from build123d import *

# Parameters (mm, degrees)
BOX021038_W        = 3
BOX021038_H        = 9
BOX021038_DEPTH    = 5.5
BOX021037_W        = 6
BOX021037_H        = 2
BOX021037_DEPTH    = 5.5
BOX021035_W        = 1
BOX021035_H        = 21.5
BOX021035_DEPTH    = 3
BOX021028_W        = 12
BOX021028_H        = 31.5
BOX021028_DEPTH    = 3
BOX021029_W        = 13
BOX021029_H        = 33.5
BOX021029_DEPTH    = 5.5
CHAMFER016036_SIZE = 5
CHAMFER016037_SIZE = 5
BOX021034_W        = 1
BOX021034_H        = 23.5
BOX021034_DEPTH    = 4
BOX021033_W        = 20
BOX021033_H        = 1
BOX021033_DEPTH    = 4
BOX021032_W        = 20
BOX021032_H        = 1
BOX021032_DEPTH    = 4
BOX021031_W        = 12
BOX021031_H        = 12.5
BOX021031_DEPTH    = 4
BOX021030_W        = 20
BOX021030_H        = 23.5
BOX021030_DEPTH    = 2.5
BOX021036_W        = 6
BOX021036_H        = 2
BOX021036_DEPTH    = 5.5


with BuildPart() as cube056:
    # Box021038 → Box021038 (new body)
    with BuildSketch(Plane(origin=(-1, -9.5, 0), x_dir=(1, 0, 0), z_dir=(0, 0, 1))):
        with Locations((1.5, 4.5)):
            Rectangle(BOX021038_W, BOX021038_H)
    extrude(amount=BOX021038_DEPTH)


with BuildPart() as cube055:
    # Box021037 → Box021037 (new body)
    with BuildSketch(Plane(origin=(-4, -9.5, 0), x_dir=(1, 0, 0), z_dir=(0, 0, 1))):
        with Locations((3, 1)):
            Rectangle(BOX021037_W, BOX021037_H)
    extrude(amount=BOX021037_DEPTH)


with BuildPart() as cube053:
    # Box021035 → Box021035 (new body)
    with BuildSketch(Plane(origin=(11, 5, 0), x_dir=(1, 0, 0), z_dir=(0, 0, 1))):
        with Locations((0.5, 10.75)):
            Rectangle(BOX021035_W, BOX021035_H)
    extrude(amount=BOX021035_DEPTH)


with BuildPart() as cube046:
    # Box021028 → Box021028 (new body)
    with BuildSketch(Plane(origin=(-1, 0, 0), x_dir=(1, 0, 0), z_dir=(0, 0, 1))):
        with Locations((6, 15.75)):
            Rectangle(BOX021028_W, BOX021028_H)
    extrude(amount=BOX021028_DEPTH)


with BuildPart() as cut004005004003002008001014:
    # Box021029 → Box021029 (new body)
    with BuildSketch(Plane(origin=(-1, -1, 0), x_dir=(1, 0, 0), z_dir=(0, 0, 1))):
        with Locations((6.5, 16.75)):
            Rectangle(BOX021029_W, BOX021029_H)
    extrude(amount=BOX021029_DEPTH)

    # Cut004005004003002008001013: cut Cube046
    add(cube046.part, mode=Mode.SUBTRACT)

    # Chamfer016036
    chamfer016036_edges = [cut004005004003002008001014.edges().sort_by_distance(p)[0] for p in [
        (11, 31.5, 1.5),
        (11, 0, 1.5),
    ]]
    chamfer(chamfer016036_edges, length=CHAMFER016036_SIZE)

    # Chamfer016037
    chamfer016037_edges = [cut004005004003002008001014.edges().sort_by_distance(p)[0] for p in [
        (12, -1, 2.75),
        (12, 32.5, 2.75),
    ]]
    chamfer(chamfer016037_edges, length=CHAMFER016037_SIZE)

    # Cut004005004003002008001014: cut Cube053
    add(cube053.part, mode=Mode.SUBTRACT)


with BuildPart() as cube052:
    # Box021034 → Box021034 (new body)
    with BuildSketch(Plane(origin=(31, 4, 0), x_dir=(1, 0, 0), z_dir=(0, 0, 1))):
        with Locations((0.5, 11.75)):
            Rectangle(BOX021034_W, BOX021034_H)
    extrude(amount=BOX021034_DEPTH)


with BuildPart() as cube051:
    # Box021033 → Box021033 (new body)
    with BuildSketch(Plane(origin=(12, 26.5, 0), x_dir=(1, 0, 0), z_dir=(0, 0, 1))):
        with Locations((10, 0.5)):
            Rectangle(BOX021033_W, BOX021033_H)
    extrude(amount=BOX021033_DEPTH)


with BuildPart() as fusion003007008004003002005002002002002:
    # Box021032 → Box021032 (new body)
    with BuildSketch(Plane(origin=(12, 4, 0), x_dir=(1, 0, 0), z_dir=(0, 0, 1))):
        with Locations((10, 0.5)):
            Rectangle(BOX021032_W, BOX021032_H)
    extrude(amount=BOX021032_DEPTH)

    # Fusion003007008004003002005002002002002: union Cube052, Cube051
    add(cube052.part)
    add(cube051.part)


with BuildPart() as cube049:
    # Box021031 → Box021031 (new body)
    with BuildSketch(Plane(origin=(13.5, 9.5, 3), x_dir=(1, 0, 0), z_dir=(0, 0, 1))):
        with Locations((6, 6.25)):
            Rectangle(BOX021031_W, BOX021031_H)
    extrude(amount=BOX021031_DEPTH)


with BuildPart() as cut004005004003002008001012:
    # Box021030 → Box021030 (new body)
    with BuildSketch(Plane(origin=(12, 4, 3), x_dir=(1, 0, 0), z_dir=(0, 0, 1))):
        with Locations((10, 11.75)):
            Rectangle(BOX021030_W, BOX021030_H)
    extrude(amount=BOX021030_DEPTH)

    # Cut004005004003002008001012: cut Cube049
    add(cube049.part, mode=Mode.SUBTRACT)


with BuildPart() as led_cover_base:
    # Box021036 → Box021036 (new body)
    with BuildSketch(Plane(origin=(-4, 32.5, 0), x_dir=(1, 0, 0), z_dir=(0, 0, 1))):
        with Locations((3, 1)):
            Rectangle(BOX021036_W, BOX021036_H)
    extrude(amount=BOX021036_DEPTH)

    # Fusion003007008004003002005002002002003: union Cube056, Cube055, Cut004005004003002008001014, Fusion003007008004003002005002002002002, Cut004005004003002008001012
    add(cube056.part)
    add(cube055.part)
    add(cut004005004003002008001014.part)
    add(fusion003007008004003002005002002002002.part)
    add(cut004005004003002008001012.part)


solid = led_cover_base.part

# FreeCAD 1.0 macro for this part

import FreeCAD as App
import Part
import Sketcher

V = App.Vector


def edges_at(feature, points):
    """Names of the edges that pass closest to the given points."""
    edges = feature.Shape.Edges
    near = lambda p: min(range(len(edges)), key=lambda i: edges[i].distToShape(Part.Vertex(*p))[0])
    return sorted({f"Edge{near(p) + 1}" for p in points})

doc = App.newDocument("Part")
body = doc.addObject("PartDesign::Body", "Body")

sketch1 = doc.addObject("Sketcher::SketchObject", "Sketch")
body.addObject(sketch1)
sketch1.AttachmentSupport = (doc.XY_Plane, [""])
sketch1.MapMode = "FlatFace"
sketch1.addGeometry([
    Part.LineSegment(V(-1, -0.5, 0), V(-1, -9.5, 0)),
    Part.LineSegment(V(-1, -9.5, 0), V(2, -9.5, 0)),
    Part.LineSegment(V(2, -9.5, 0), V(2, -0.5, 0)),
    Part.LineSegment(V(2, -0.5, 0), V(-1, -0.5, 0)),
], False)
sketch1.addConstraint([
    Sketcher.Constraint("Coincident", 0, 2, 1, 1),
    Sketcher.Constraint("Coincident", 1, 2, 2, 1),
    Sketcher.Constraint("Coincident", 2, 2, 3, 1),
    Sketcher.Constraint("Coincident", 3, 2, 0, 1),
    Sketcher.Constraint("Vertical", 0),
    Sketcher.Constraint("Horizontal", 1),
    Sketcher.Constraint("Vertical", 2),
    Sketcher.Constraint("Horizontal", 3),
    Sketcher.Constraint("DistanceX", 1, 1, 1, 2, 3.0),
    Sketcher.Constraint("DistanceY", 0, 2, 0, 1, 9.0),
    Sketcher.Constraint("DistanceX", 0, 2, -1, 1, 1.0),
    Sketcher.Constraint("DistanceY", 0, 2, -1, 1, 9.5),
])
pad1 = doc.addObject("PartDesign::Pad", "Pad")
body.addObject(pad1)
pad1.Profile = sketch1
pad1.Length = 5.5
body2 = doc.addObject("PartDesign::Body", "Body001")

sketch2 = doc.addObject("Sketcher::SketchObject", "Sketch001")
body2.addObject(sketch2)
sketch2.AttachmentSupport = (doc.getObject("XY_Plane001"), [""])
sketch2.MapMode = "FlatFace"
sketch2.addGeometry([
    Part.LineSegment(V(-4, -7.5, 0), V(-4, -9.5, 0)),
    Part.LineSegment(V(-4, -9.5, 0), V(2, -9.5, 0)),
    Part.LineSegment(V(2, -9.5, 0), V(2, -7.5, 0)),
    Part.LineSegment(V(2, -7.5, 0), V(-4, -7.5, 0)),
], False)
sketch2.addConstraint([
    Sketcher.Constraint("Coincident", 0, 2, 1, 1),
    Sketcher.Constraint("Coincident", 1, 2, 2, 1),
    Sketcher.Constraint("Coincident", 2, 2, 3, 1),
    Sketcher.Constraint("Coincident", 3, 2, 0, 1),
    Sketcher.Constraint("Vertical", 0),
    Sketcher.Constraint("Horizontal", 1),
    Sketcher.Constraint("Vertical", 2),
    Sketcher.Constraint("Horizontal", 3),
    Sketcher.Constraint("DistanceX", 1, 1, 1, 2, 6.0),
    Sketcher.Constraint("DistanceY", 0, 2, 0, 1, 2.0),
    Sketcher.Constraint("DistanceX", 0, 2, -1, 1, 4.0),
    Sketcher.Constraint("DistanceY", 0, 2, -1, 1, 9.5),
])
pad2 = doc.addObject("PartDesign::Pad", "Pad001")
body2.addObject(pad2)
pad2.Profile = sketch2
pad2.Length = 5.5
body3 = doc.addObject("PartDesign::Body", "Body002")

sketch3 = doc.addObject("Sketcher::SketchObject", "Sketch002")
body3.addObject(sketch3)
sketch3.AttachmentSupport = (doc.getObject("XY_Plane002"), [""])
sketch3.MapMode = "FlatFace"
sketch3.addGeometry([
    Part.LineSegment(V(11, 26.5, 0), V(11, 5, 0)),
    Part.LineSegment(V(11, 5, 0), V(12, 5, 0)),
    Part.LineSegment(V(12, 5, 0), V(12, 26.5, 0)),
    Part.LineSegment(V(12, 26.5, 0), V(11, 26.5, 0)),
], False)
sketch3.addConstraint([
    Sketcher.Constraint("Coincident", 0, 2, 1, 1),
    Sketcher.Constraint("Coincident", 1, 2, 2, 1),
    Sketcher.Constraint("Coincident", 2, 2, 3, 1),
    Sketcher.Constraint("Coincident", 3, 2, 0, 1),
    Sketcher.Constraint("Vertical", 0),
    Sketcher.Constraint("Horizontal", 1),
    Sketcher.Constraint("Vertical", 2),
    Sketcher.Constraint("Horizontal", 3),
    Sketcher.Constraint("DistanceX", 1, 1, 1, 2, 1.0),
    Sketcher.Constraint("DistanceY", 0, 2, 0, 1, 21.5),
    Sketcher.Constraint("DistanceX", -1, 1, 0, 2, 11.0),
    Sketcher.Constraint("DistanceY", -1, 1, 0, 2, 5.0),
])
pad3 = doc.addObject("PartDesign::Pad", "Pad002")
body3.addObject(pad3)
pad3.Profile = sketch3
pad3.Length = 3
body4 = doc.addObject("PartDesign::Body", "Body003")

sketch4 = doc.addObject("Sketcher::SketchObject", "Sketch003")
body4.addObject(sketch4)
sketch4.AttachmentSupport = (doc.getObject("XY_Plane003"), [""])
sketch4.MapMode = "FlatFace"
sketch4.addGeometry([
    Part.LineSegment(V(-1, 31.5, 0), V(-1, 0, 0)),
    Part.LineSegment(V(-1, 0, 0), V(11, 0, 0)),
    Part.LineSegment(V(11, 0, 0), V(11, 31.5, 0)),
    Part.LineSegment(V(11, 31.5, 0), V(-1, 31.5, 0)),
], False)
sketch4.addConstraint([
    Sketcher.Constraint("Coincident", 0, 2, 1, 1),
    Sketcher.Constraint("Coincident", 1, 2, 2, 1),
    Sketcher.Constraint("Coincident", 2, 2, 3, 1),
    Sketcher.Constraint("Coincident", 3, 2, 0, 1),
    Sketcher.Constraint("Vertical", 0),
    Sketcher.Constraint("Horizontal", 1),
    Sketcher.Constraint("Vertical", 2),
    Sketcher.Constraint("Horizontal", 3),
    Sketcher.Constraint("PointOnObject", 0, 2, -1),
    Sketcher.Constraint("DistanceX", 1, 1, 1, 2, 12.0),
    Sketcher.Constraint("DistanceY", 0, 2, 0, 1, 31.5),
    Sketcher.Constraint("DistanceX", 0, 2, -1, 1, 1.0),
])
pad4 = doc.addObject("PartDesign::Pad", "Pad003")
body4.addObject(pad4)
pad4.Profile = sketch4
pad4.Length = 3
body5 = doc.addObject("PartDesign::Body", "Body004")

sketch5 = doc.addObject("Sketcher::SketchObject", "Sketch004")
body5.addObject(sketch5)
sketch5.AttachmentSupport = (doc.getObject("XY_Plane004"), [""])
sketch5.MapMode = "FlatFace"
sketch5.addGeometry([
    Part.LineSegment(V(-1, 32.5, 0), V(-1, -1, 0)),
    Part.LineSegment(V(-1, -1, 0), V(12, -1, 0)),
    Part.LineSegment(V(12, -1, 0), V(12, 32.5, 0)),
    Part.LineSegment(V(12, 32.5, 0), V(-1, 32.5, 0)),
], False)
sketch5.addConstraint([
    Sketcher.Constraint("Coincident", 0, 2, 1, 1),
    Sketcher.Constraint("Coincident", 1, 2, 2, 1),
    Sketcher.Constraint("Coincident", 2, 2, 3, 1),
    Sketcher.Constraint("Coincident", 3, 2, 0, 1),
    Sketcher.Constraint("Vertical", 0),
    Sketcher.Constraint("Horizontal", 1),
    Sketcher.Constraint("Vertical", 2),
    Sketcher.Constraint("Horizontal", 3),
    Sketcher.Constraint("DistanceX", 1, 1, 1, 2, 13.0),
    Sketcher.Constraint("DistanceY", 0, 2, 0, 1, 33.5),
    Sketcher.Constraint("DistanceX", 0, 2, -1, 1, 1.0),
    Sketcher.Constraint("DistanceY", 0, 2, -1, 1, 1.0),
])
pad5 = doc.addObject("PartDesign::Pad", "Pad004")
body5.addObject(pad5)
pad5.Profile = sketch5
pad5.Length = 5.5
doc.recompute()

boolean = doc.addObject("PartDesign::Boolean", "Boolean")
body5.addObject(boolean)
boolean.Type = "Cut"
boolean.addObjects([body4])
doc.recompute()

chamfer = doc.addObject("PartDesign::Chamfer", "Chamfer")
body5.addObject(chamfer)
chamfer.Base = (boolean, edges_at(boolean, [(11, 31.5, 1.5), (11, 0, 1.5)]))
chamfer.Size = 5
doc.recompute()

chamfer2 = doc.addObject("PartDesign::Chamfer", "Chamfer001")
body5.addObject(chamfer2)
chamfer2.Base = (chamfer, edges_at(chamfer, [(12, -1, 2.75), (12, 32.5, 2.75)]))
chamfer2.Size = 5
doc.recompute()

boolean2 = doc.addObject("PartDesign::Boolean", "Boolean001")
body5.addObject(boolean2)
boolean2.Type = "Cut"
boolean2.addObjects([body3])
body6 = doc.addObject("PartDesign::Body", "Body005")

sketch6 = doc.addObject("Sketcher::SketchObject", "Sketch005")
body6.addObject(sketch6)
sketch6.AttachmentSupport = (doc.getObject("XY_Plane005"), [""])
sketch6.MapMode = "FlatFace"
sketch6.addGeometry([
    Part.LineSegment(V(31, 27.5, 0), V(31, 4, 0)),
    Part.LineSegment(V(31, 4, 0), V(32, 4, 0)),
    Part.LineSegment(V(32, 4, 0), V(32, 27.5, 0)),
    Part.LineSegment(V(32, 27.5, 0), V(31, 27.5, 0)),
], False)
sketch6.addConstraint([
    Sketcher.Constraint("Coincident", 0, 2, 1, 1),
    Sketcher.Constraint("Coincident", 1, 2, 2, 1),
    Sketcher.Constraint("Coincident", 2, 2, 3, 1),
    Sketcher.Constraint("Coincident", 3, 2, 0, 1),
    Sketcher.Constraint("Vertical", 0),
    Sketcher.Constraint("Horizontal", 1),
    Sketcher.Constraint("Vertical", 2),
    Sketcher.Constraint("Horizontal", 3),
    Sketcher.Constraint("DistanceX", 1, 1, 1, 2, 1.0),
    Sketcher.Constraint("DistanceY", 0, 2, 0, 1, 23.5),
    Sketcher.Constraint("DistanceX", -1, 1, 0, 2, 31.0),
    Sketcher.Constraint("DistanceY", -1, 1, 0, 2, 4.0),
])
pad6 = doc.addObject("PartDesign::Pad", "Pad005")
body6.addObject(pad6)
pad6.Profile = sketch6
pad6.Length = 4
body7 = doc.addObject("PartDesign::Body", "Body006")

sketch7 = doc.addObject("Sketcher::SketchObject", "Sketch006")
body7.addObject(sketch7)
sketch7.AttachmentSupport = (doc.getObject("XY_Plane006"), [""])
sketch7.MapMode = "FlatFace"
sketch7.addGeometry([
    Part.LineSegment(V(12, 27.5, 0), V(12, 26.5, 0)),
    Part.LineSegment(V(12, 26.5, 0), V(32, 26.5, 0)),
    Part.LineSegment(V(32, 26.5, 0), V(32, 27.5, 0)),
    Part.LineSegment(V(32, 27.5, 0), V(12, 27.5, 0)),
], False)
sketch7.addConstraint([
    Sketcher.Constraint("Coincident", 0, 2, 1, 1),
    Sketcher.Constraint("Coincident", 1, 2, 2, 1),
    Sketcher.Constraint("Coincident", 2, 2, 3, 1),
    Sketcher.Constraint("Coincident", 3, 2, 0, 1),
    Sketcher.Constraint("Vertical", 0),
    Sketcher.Constraint("Horizontal", 1),
    Sketcher.Constraint("Vertical", 2),
    Sketcher.Constraint("Horizontal", 3),
    Sketcher.Constraint("DistanceX", 1, 1, 1, 2, 20.0),
    Sketcher.Constraint("DistanceY", 0, 2, 0, 1, 1.0),
    Sketcher.Constraint("DistanceX", -1, 1, 0, 2, 12.0),
    Sketcher.Constraint("DistanceY", -1, 1, 0, 2, 26.5),
])
pad7 = doc.addObject("PartDesign::Pad", "Pad006")
body7.addObject(pad7)
pad7.Profile = sketch7
pad7.Length = 4
body8 = doc.addObject("PartDesign::Body", "Body007")

sketch8 = doc.addObject("Sketcher::SketchObject", "Sketch007")
body8.addObject(sketch8)
sketch8.AttachmentSupport = (doc.getObject("XY_Plane007"), [""])
sketch8.MapMode = "FlatFace"
sketch8.addGeometry([
    Part.LineSegment(V(12, 5, 0), V(12, 4, 0)),
    Part.LineSegment(V(12, 4, 0), V(32, 4, 0)),
    Part.LineSegment(V(32, 4, 0), V(32, 5, 0)),
    Part.LineSegment(V(32, 5, 0), V(12, 5, 0)),
], False)
sketch8.addConstraint([
    Sketcher.Constraint("Coincident", 0, 2, 1, 1),
    Sketcher.Constraint("Coincident", 1, 2, 2, 1),
    Sketcher.Constraint("Coincident", 2, 2, 3, 1),
    Sketcher.Constraint("Coincident", 3, 2, 0, 1),
    Sketcher.Constraint("Vertical", 0),
    Sketcher.Constraint("Horizontal", 1),
    Sketcher.Constraint("Vertical", 2),
    Sketcher.Constraint("Horizontal", 3),
    Sketcher.Constraint("DistanceX", 1, 1, 1, 2, 20.0),
    Sketcher.Constraint("DistanceY", 0, 2, 0, 1, 1.0),
    Sketcher.Constraint("DistanceX", -1, 1, 0, 2, 12.0),
    Sketcher.Constraint("DistanceY", -1, 1, 0, 2, 4.0),
])
pad8 = doc.addObject("PartDesign::Pad", "Pad007")
body8.addObject(pad8)
pad8.Profile = sketch8
pad8.Length = 4
doc.recompute()

boolean3 = doc.addObject("PartDesign::Boolean", "Boolean002")
body8.addObject(boolean3)
boolean3.Type = "Fuse"
boolean3.addObjects([body6])
doc.recompute()

boolean4 = doc.addObject("PartDesign::Boolean", "Boolean003")
body8.addObject(boolean4)
boolean4.Type = "Fuse"
boolean4.addObjects([body7])
body9 = doc.addObject("PartDesign::Body", "Body008")

sketch9 = doc.addObject("Sketcher::SketchObject", "Sketch008")
body9.addObject(sketch9)
sketch9.AttachmentSupport = (doc.getObject("XY_Plane008"), [""])
sketch9.MapMode = "FlatFace"
sketch9.AttachmentOffset = App.Placement(V(0, 0, 3), App.Rotation())
sketch9.addGeometry([
    Part.LineSegment(V(13.5, 22, 0), V(13.5, 9.5, 0)),
    Part.LineSegment(V(13.5, 9.5, 0), V(25.5, 9.5, 0)),
    Part.LineSegment(V(25.5, 9.5, 0), V(25.5, 22, 0)),
    Part.LineSegment(V(25.5, 22, 0), V(13.5, 22, 0)),
], False)
sketch9.addConstraint([
    Sketcher.Constraint("Coincident", 0, 2, 1, 1),
    Sketcher.Constraint("Coincident", 1, 2, 2, 1),
    Sketcher.Constraint("Coincident", 2, 2, 3, 1),
    Sketcher.Constraint("Coincident", 3, 2, 0, 1),
    Sketcher.Constraint("Vertical", 0),
    Sketcher.Constraint("Horizontal", 1),
    Sketcher.Constraint("Vertical", 2),
    Sketcher.Constraint("Horizontal", 3),
    Sketcher.Constraint("DistanceX", 1, 1, 1, 2, 12.0),
    Sketcher.Constraint("DistanceY", 0, 2, 0, 1, 12.5),
    Sketcher.Constraint("DistanceY", -1, 1, 2, 2, 22.0),
    Sketcher.Constraint("DistanceX", -1, 1, 0, 2, 13.5),
])
pad9 = doc.addObject("PartDesign::Pad", "Pad008")
body9.addObject(pad9)
pad9.Profile = sketch9
pad9.Length = 4
body10 = doc.addObject("PartDesign::Body", "Body009")

sketch10 = doc.addObject("Sketcher::SketchObject", "Sketch009")
body10.addObject(sketch10)
sketch10.AttachmentSupport = (doc.getObject("XY_Plane009"), [""])
sketch10.MapMode = "FlatFace"
sketch10.AttachmentOffset = App.Placement(V(0, 0, 3), App.Rotation())
sketch10.addGeometry([
    Part.LineSegment(V(12, 27.5, 0), V(12, 4, 0)),
    Part.LineSegment(V(12, 4, 0), V(32, 4, 0)),
    Part.LineSegment(V(32, 4, 0), V(32, 27.5, 0)),
    Part.LineSegment(V(32, 27.5, 0), V(12, 27.5, 0)),
], False)
sketch10.addConstraint([
    Sketcher.Constraint("Coincident", 0, 2, 1, 1),
    Sketcher.Constraint("Coincident", 1, 2, 2, 1),
    Sketcher.Constraint("Coincident", 2, 2, 3, 1),
    Sketcher.Constraint("Coincident", 3, 2, 0, 1),
    Sketcher.Constraint("Vertical", 0),
    Sketcher.Constraint("Horizontal", 1),
    Sketcher.Constraint("Vertical", 2),
    Sketcher.Constraint("Horizontal", 3),
    Sketcher.Constraint("DistanceX", 1, 1, 1, 2, 20.0),
    Sketcher.Constraint("DistanceY", 0, 2, 0, 1, 23.5),
    Sketcher.Constraint("DistanceX", -1, 1, 0, 2, 12.0),
    Sketcher.Constraint("DistanceY", -1, 1, 0, 2, 4.0),
])
pad10 = doc.addObject("PartDesign::Pad", "Pad009")
body10.addObject(pad10)
pad10.Profile = sketch10
pad10.Length = 2.5
doc.recompute()

boolean5 = doc.addObject("PartDesign::Boolean", "Boolean004")
body10.addObject(boolean5)
boolean5.Type = "Cut"
boolean5.addObjects([body9])
body11 = doc.addObject("PartDesign::Body", "Body010")
body11.AllowCompound = True

sketch11 = doc.addObject("Sketcher::SketchObject", "Sketch010")
body11.addObject(sketch11)
sketch11.AttachmentSupport = (doc.getObject("XY_Plane010"), [""])
sketch11.MapMode = "FlatFace"
sketch11.addGeometry([
    Part.LineSegment(V(-4, 34.5, 0), V(-4, 32.5, 0)),
    Part.LineSegment(V(-4, 32.5, 0), V(2, 32.5, 0)),
    Part.LineSegment(V(2, 32.5, 0), V(2, 34.5, 0)),
    Part.LineSegment(V(2, 34.5, 0), V(-4, 34.5, 0)),
], False)
sketch11.addConstraint([
    Sketcher.Constraint("Coincident", 0, 2, 1, 1),
    Sketcher.Constraint("Coincident", 1, 2, 2, 1),
    Sketcher.Constraint("Coincident", 2, 2, 3, 1),
    Sketcher.Constraint("Coincident", 3, 2, 0, 1),
    Sketcher.Constraint("Vertical", 0),
    Sketcher.Constraint("Horizontal", 1),
    Sketcher.Constraint("Vertical", 2),
    Sketcher.Constraint("Horizontal", 3),
    Sketcher.Constraint("DistanceX", 1, 1, 1, 2, 6.0),
    Sketcher.Constraint("DistanceY", 0, 2, 0, 1, 2.0),
    Sketcher.Constraint("DistanceX", 0, 2, -1, 1, 4.0),
    Sketcher.Constraint("DistanceY", -1, 1, 0, 2, 32.5),
])
pad11 = doc.addObject("PartDesign::Pad", "Pad010")
body11.addObject(pad11)
pad11.Profile = sketch11
pad11.Length = 5.5
doc.recompute()

boolean6 = doc.addObject("PartDesign::Boolean", "Boolean005")
body11.addObject(boolean6)
boolean6.Type = "Fuse"
boolean6.addObjects([body])
doc.recompute()

boolean7 = doc.addObject("PartDesign::Boolean", "Boolean006")
body11.addObject(boolean7)
boolean7.Type = "Fuse"
boolean7.addObjects([body2])
doc.recompute()

boolean8 = doc.addObject("PartDesign::Boolean", "Boolean007")
body11.addObject(boolean8)
boolean8.Type = "Fuse"
boolean8.addObjects([body5])
doc.recompute()

boolean9 = doc.addObject("PartDesign::Boolean", "Boolean008")
body11.addObject(boolean9)
boolean9.Type = "Fuse"
boolean9.addObjects([body8])
doc.recompute()

boolean10 = doc.addObject("PartDesign::Boolean", "Boolean009")
body11.addObject(boolean10)
boolean10.Type = "Fuse"
boolean10.addObjects([body10])

doc.recompute()
